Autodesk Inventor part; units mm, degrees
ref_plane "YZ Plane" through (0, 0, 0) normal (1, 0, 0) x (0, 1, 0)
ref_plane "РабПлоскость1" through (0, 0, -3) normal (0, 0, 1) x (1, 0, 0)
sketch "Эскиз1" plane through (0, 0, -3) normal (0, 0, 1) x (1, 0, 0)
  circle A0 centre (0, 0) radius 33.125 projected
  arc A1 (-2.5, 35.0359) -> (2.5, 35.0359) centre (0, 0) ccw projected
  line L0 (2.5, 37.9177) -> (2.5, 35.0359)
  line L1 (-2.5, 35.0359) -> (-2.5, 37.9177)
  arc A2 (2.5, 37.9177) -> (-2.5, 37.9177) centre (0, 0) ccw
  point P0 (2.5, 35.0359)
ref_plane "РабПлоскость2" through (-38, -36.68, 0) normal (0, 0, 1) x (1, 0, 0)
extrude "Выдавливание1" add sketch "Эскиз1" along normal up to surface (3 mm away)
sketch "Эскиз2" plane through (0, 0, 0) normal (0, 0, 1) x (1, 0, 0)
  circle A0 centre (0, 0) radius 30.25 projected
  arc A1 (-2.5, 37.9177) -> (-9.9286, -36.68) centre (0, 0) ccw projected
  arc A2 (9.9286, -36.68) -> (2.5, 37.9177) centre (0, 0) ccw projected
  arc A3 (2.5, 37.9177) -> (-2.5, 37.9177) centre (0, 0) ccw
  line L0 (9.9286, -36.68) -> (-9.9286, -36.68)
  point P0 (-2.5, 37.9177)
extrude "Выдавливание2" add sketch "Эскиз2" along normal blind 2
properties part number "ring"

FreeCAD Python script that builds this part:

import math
import FreeCAD as App
import Part
import Sketcher
from FreeCAD import Vector
Q = App.Units.Quantity

doc = App.newDocument("Part")
body = doc.addObject("PartDesign::Body", "Body")

# Sketch on XY plane
sketch1 = body.newObject("Sketcher::SketchObject", "Sketch")
sketch1.AttachmentSupport = (doc.getObject("XY_Plane"), [""])
sketch1.MapMode = "FlatFace"
sketch1.AttachmentOffset = App.Placement(Vector(0, 0, -3), App.Rotation())
sketch1.addGeometry([
    Part.LineSegment(Vector(-2.5, 37.9177, 0), Vector(-2.5, 35.0359, 0)),  # 0
    Part.ArcOfCircle(Part.Circle(Vector(0, 0, 0), Vector(0, 0, 1), 35.124981), math.radians(94.081445), math.radians(445.918555)),  # 1
    Part.LineSegment(Vector(2.5, 35.0359, 0), Vector(2.5, 37.9177, 0)),  # 2
    Part.ArcOfCircle(Part.Circle(Vector(0, 0, 0), Vector(0, 0, 1), 38.000026), math.radians(86.227819), math.radians(93.772181)),  # 3
    Part.Circle(Vector(0, 0, 0), Vector(0, 0, 1), 33.125),  # 4
], False)
sketch1.addConstraint([
    Sketcher.Constraint("Coincident", 0, 2, 1, 1),
    Sketcher.Constraint("Coincident", 1, 2, 2, 1),
    Sketcher.Constraint("Coincident", 2, 2, 3, 1),
    Sketcher.Constraint("Coincident", 3, 2, 0, 1),
    Sketcher.Constraint("Vertical", 0),
    Sketcher.Constraint("Vertical", 2),
    Sketcher.Constraint("Coincident", 1, 3, -1, 1),
    Sketcher.Constraint("Coincident", 3, 3, -1, 1),
    Sketcher.Constraint("Coincident", 4, 3, -1, 1),
    Sketcher.Constraint("Horizontal", 0, 2, 1, 2),
    Sketcher.Constraint("Radius", 3, Q("38 mm")),
    Sketcher.Constraint("Diameter", 4, Q("66.25 mm")),
    Sketcher.Constraint("Radius", 1, Q("35.125 mm")),
    Sketcher.Constraint("DistanceX", 0, 2, 1, 2, Q("5 mm")),
])
pad1 = body.newObject("PartDesign::Pad", "Pad")
pad1.Profile = sketch1
pad1.Length = 3

# Sketch on XY plane
sketch2 = body.newObject("Sketcher::SketchObject", "Sketch001")
sketch2.AttachmentSupport = (doc.getObject("XY_Plane"), [""])
sketch2.MapMode = "FlatFace"
sketch2.addGeometry([
    Part.ArcOfCircle(Part.Circle(Vector(0, 0, 0), Vector(0, 0, 1), 38.000026), math.radians(86.227819), math.radians(93.772181)),  # 0
    Part.ArcOfCircle(Part.Circle(Vector(0, 0, 0), Vector(0, 0, 1), 37.999993), math.radians(93.772181), math.radians(254.854033)),  # 1
    Part.LineSegment(Vector(-9.9286, -36.68, 0), Vector(9.9286, -36.68, 0)),  # 2
    Part.ArcOfCircle(Part.Circle(Vector(0, 0, 0), Vector(0, 0, 1), 38.000026), math.radians(-74.854033), math.radians(86.227819)),  # 3
    Part.Circle(Vector(0, 0, 0), Vector(0, 0, 1), 30.25),  # 4
], False)
sketch2.addConstraint([
    Sketcher.Constraint("Tangent", 0, 2, 1, 1),
    Sketcher.Constraint("Coincident", 1, 2, 2, 1),
    Sketcher.Constraint("Coincident", 2, 2, 3, 1),
    Sketcher.Constraint("Tangent", 3, 2, 0, 1),
    Sketcher.Constraint("Horizontal", 2),
    Sketcher.Constraint("Coincident", 0, 3, -1, 1),
    Sketcher.Constraint("Coincident", 4, 3, -1, 1),
    Sketcher.Constraint("Equal", 0, 1),
    Sketcher.Constraint("Equal", 1, 3),
    Sketcher.Constraint("Horizontal", 0, 2, 3, 2),
    Sketcher.Constraint("Radius", 0, Q("38 mm")),
    Sketcher.Constraint("Diameter", 4, Q("60.5 mm")),
    Sketcher.Constraint("DistanceX", 0, 2, 3, 2, Q("5 mm")),
    Sketcher.Constraint("DistanceY", 1, 2, -1, 1, Q("36.68 mm")),
])
pad2 = body.newObject("PartDesign::Pad", "Pad001")
pad2.Profile = sketch2
pad2.Length = 2

doc.recompute()
